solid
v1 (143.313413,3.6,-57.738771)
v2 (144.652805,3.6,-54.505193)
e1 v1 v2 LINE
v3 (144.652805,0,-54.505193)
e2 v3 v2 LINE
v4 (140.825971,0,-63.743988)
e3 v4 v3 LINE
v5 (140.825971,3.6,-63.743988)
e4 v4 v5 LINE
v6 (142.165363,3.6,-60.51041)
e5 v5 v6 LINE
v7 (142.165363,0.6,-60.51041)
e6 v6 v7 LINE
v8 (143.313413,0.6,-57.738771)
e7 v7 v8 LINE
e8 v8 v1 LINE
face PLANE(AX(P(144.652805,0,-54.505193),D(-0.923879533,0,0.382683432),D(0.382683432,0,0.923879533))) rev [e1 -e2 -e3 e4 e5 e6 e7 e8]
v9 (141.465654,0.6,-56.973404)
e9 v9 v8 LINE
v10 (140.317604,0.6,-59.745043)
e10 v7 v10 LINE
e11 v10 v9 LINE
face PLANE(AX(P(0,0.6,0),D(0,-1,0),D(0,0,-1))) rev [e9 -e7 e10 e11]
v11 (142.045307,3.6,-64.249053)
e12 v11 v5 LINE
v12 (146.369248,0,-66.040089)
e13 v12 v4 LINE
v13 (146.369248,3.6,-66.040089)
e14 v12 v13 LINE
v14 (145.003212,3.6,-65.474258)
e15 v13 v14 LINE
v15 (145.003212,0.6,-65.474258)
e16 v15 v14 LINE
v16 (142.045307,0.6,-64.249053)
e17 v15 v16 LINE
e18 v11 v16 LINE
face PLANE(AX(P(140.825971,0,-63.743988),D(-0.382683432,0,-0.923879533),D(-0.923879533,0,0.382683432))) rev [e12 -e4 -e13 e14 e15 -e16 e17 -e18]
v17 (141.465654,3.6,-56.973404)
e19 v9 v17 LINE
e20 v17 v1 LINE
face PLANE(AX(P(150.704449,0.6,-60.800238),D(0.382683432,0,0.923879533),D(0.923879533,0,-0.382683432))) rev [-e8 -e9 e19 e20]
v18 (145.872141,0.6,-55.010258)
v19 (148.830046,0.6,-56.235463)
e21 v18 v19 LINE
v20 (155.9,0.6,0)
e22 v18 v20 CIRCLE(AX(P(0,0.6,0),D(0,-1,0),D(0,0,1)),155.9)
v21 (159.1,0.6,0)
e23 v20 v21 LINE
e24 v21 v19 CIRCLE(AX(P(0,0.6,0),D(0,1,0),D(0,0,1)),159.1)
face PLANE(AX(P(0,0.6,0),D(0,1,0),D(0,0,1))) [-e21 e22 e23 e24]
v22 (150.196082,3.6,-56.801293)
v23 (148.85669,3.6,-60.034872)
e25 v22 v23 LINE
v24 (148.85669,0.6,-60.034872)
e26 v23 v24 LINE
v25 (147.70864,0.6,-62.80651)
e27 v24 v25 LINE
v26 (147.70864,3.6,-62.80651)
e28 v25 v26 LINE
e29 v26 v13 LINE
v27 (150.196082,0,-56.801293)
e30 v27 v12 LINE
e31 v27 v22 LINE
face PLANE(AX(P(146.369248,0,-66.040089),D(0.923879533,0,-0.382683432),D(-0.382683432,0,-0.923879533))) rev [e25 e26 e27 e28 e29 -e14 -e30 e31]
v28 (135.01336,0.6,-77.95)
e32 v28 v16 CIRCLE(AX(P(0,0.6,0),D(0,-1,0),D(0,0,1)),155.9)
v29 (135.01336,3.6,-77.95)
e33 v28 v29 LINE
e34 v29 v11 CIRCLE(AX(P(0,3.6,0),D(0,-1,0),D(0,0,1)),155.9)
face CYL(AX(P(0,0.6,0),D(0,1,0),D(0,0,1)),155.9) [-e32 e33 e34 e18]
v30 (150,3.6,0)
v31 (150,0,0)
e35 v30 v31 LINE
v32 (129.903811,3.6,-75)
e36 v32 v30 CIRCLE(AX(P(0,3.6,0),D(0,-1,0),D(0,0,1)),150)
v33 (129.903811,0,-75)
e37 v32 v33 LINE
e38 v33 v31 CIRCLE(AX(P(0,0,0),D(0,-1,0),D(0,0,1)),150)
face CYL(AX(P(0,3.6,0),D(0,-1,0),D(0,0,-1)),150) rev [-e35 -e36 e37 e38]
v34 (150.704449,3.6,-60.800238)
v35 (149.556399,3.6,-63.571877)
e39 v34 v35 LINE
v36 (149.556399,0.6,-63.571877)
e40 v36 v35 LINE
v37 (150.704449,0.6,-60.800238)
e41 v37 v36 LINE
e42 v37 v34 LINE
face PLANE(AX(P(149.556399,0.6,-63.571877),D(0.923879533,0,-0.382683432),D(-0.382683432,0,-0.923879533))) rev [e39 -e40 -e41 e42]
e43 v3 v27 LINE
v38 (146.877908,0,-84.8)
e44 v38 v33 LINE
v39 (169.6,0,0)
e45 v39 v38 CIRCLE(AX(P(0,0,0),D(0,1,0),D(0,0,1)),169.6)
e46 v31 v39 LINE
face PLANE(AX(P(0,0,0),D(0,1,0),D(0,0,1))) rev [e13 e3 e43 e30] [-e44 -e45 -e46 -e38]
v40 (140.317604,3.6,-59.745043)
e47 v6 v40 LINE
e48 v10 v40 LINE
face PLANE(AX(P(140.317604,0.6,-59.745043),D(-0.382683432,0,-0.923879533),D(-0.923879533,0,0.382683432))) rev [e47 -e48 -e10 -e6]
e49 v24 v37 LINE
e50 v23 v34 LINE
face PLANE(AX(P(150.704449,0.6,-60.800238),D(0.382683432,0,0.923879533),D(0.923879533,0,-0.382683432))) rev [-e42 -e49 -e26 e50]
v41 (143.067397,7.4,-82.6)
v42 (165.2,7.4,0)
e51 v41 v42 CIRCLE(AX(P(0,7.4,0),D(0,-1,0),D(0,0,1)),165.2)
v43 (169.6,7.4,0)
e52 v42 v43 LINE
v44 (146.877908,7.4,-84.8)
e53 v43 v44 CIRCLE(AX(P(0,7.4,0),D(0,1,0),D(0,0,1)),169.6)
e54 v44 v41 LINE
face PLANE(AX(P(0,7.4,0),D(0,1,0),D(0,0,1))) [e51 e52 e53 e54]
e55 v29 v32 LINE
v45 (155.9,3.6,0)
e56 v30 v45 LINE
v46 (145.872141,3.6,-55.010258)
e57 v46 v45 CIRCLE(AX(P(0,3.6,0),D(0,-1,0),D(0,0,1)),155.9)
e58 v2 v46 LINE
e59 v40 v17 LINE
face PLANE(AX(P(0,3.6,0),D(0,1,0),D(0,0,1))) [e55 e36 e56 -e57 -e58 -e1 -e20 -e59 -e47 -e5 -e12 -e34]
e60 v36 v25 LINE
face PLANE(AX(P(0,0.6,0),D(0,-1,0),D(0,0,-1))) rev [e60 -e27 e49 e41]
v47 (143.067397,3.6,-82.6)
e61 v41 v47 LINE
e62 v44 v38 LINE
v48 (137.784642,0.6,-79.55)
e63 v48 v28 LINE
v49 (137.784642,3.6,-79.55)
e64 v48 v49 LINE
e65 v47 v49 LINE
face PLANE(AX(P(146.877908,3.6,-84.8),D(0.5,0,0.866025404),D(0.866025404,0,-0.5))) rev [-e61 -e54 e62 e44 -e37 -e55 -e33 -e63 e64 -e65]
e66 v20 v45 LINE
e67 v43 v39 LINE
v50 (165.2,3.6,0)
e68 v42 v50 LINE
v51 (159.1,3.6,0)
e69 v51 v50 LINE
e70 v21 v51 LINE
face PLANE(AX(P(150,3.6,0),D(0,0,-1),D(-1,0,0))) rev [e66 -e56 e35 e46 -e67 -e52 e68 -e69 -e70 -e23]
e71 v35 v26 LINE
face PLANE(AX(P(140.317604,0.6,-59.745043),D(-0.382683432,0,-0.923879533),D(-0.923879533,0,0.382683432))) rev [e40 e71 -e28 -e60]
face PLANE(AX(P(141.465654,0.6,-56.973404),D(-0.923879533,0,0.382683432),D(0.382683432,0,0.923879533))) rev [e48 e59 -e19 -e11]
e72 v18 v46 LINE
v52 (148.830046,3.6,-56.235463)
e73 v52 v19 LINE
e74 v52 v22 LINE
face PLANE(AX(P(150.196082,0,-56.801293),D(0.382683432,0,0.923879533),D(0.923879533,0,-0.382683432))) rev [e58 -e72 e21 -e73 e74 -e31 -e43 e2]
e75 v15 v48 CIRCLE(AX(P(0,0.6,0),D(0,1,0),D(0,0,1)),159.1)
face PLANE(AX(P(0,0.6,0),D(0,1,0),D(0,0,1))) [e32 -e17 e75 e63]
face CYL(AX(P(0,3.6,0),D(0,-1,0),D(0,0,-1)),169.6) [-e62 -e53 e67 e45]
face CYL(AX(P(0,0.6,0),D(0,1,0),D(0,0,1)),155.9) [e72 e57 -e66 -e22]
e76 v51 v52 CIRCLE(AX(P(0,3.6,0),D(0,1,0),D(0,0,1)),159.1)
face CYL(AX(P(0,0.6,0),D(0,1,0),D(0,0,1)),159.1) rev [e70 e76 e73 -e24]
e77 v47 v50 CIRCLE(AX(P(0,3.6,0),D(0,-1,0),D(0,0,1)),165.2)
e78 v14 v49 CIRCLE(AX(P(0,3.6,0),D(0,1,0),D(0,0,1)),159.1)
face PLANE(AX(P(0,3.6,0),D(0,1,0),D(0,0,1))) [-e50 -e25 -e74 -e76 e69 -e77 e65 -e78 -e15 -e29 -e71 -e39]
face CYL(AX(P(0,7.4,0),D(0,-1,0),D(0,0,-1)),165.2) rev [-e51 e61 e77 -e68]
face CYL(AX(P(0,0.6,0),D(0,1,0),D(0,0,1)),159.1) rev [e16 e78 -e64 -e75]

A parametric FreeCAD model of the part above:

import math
import FreeCAD as App
import Part
import Sketcher

V = App.Vector
Q = App.Units.Quantity

doc = App.newDocument("Part")
body = doc.addObject("PartDesign::Body", "Body")

sketch1 = body.newObject("Sketcher::SketchObject", "Sketch")
sketch1.AttachmentSupport = (doc.getObject("XZ_Plane"), [""])
sketch1.MapMode = "FlatFace"
sketch1.addGeometry(Part.LineSegment(V(147, -85, 0), V(130, -75, 0)), False)
sketch1.addGeometry(Part.ArcOfCircle(Part.Circle(V(0, 0, 0), V(0, 0, 1), 150), math.radians(-30), math.radians(0)), False)
sketch1.addGeometry(Part.LineSegment(V(150, 0, 0), V(170, 0, 0)), False)
sketch1.addGeometry(Part.ArcOfCircle(Part.Circle(V(0, 0, 0), V(0, 0, 1), 170), math.radians(-30), math.radians(0)), False)
sketch1.addConstraint(Sketcher.Constraint("Coincident", 0, 2, 1, 1))
sketch1.addConstraint(Sketcher.Constraint("Coincident", 1, 2, 2, 1))
sketch1.addConstraint(Sketcher.Constraint("Coincident", 2, 2, 3, 2))
sketch1.addConstraint(Sketcher.Constraint("Coincident", 3, 1, 0, 1))
sketch1.addConstraint(Sketcher.Constraint("Horizontal", 2))
sketch1.addConstraint(Sketcher.Constraint("Coincident", 1, 3, -1, 1))
sketch1.addConstraint(Sketcher.Constraint("Coincident", 3, 3, -1, 1))
sketch1.addConstraint(Sketcher.Constraint("PointOnObject", 1, 2, -1))
sketch1.addConstraint(Sketcher.Constraint("Radius", 1, 150.0))
sketch1.addConstraint(Sketcher.Constraint("Radius", 3, 169.6))
sketch1.addConstraint(Sketcher.Constraint("Angle", 0, Q("150 deg")))
sketch1.addConstraint(Sketcher.Constraint("DistanceY", 0, 2, -1, 1, 75.0))
pad1 = body.newObject("PartDesign::Pad", "Pad")
pad1.Profile = sketch1
pad1.Length = 3.6
pad1.Reversed = True

sketch2 = body.newObject("Sketcher::SketchObject", "Sketch001")
sketch2.AttachmentSupport = (doc.getObject("XZ_Plane"), [""])
sketch2.MapMode = "FlatFace"
sketch2.AttachmentOffset = App.Placement(V(0, 0, -3.6), App.Rotation())
sketch2.addGeometry(Part.LineSegment(V(137.8, -79.5, 0), V(135, -78, 0)), False)
sketch2.addGeometry(Part.ArcOfCircle(Part.Circle(V(0, 0, 0), V(0, 0, 1), 155.9), math.radians(-30), math.radians(0)), False)
sketch2.addGeometry(Part.LineSegment(V(155.9, 0, 0), V(159.1, 0, 0)), False)
sketch2.addGeometry(Part.ArcOfCircle(Part.Circle(V(0, 0, 0), V(0, 0, 1), 159.1), math.radians(-30), math.radians(0)), False)
sketch2.addConstraint(Sketcher.Constraint("Coincident", 0, 2, 1, 1))
sketch2.addConstraint(Sketcher.Constraint("Coincident", 1, 2, 2, 1))
sketch2.addConstraint(Sketcher.Constraint("Coincident", 2, 2, 3, 2))
sketch2.addConstraint(Sketcher.Constraint("Coincident", 3, 1, 0, 1))
sketch2.addConstraint(Sketcher.Constraint("Horizontal", 2))
sketch2.addConstraint(Sketcher.Constraint("Coincident", 1, 3, -1, 1))
sketch2.addConstraint(Sketcher.Constraint("Coincident", 3, 3, -1, 1))
sketch2.addConstraint(Sketcher.Constraint("PointOnObject", 1, 2, -1))
sketch2.addConstraint(Sketcher.Constraint("Radius", 1, 155.9))
sketch2.addConstraint(Sketcher.Constraint("Radius", 3, 159.1))
sketch2.addConstraint(Sketcher.Constraint("Angle", 0, Q("150 deg")))
sketch2.addConstraint(Sketcher.Constraint("DistanceY", 0, 2, -1, 1, 77.95))
pocket1 = body.newObject("PartDesign::Pocket", "Pocket")
pocket1.Profile = sketch2
pocket1.Length = 3
pocket1.Reversed = True

sketch3 = body.newObject("Sketcher::SketchObject", "Sketch002")
sketch3.AttachmentSupport = (doc.getObject("XZ_Plane"), [""])
sketch3.MapMode = "FlatFace"
sketch3.AttachmentOffset = App.Placement(V(0, 0, -3.6), App.Rotation())
sketch3.addGeometry(Part.LineSegment(V(146, -66, 0), V(141, -64, 0)), False)
sketch3.addGeometry(Part.LineSegment(V(141, -64, 0), V(145, -55, 0)), False)
sketch3.addGeometry(Part.LineSegment(V(145, -55, 0), V(150, -57, 0)), False)
sketch3.addGeometry(Part.LineSegment(V(150, -57, 0), V(146, -66, 0)), False)
sketch3.addConstraint(Sketcher.Constraint("Coincident", 0, 2, 1, 1))
sketch3.addConstraint(Sketcher.Constraint("Coincident", 1, 2, 2, 1))
sketch3.addConstraint(Sketcher.Constraint("Coincident", 2, 2, 3, 1))
sketch3.addConstraint(Sketcher.Constraint("Coincident", 3, 2, 0, 1))
sketch3.addConstraint(Sketcher.Constraint("Perpendicular", 0, 1))
sketch3.addConstraint(Sketcher.Constraint("Perpendicular", 1, 2))
sketch3.addConstraint(Sketcher.Constraint("Perpendicular", 2, 3))
sketch3.addConstraint(Sketcher.Constraint("Distance", 0, 6.0))
sketch3.addConstraint(Sketcher.Constraint("Distance", 1, 10.0))
sketch3.addConstraint(Sketcher.Constraint("Angle", 0, Q("157.5 deg")))
sketch3.addConstraint(Sketcher.Constraint("DistanceX", -1, 1, 0, 2, 140.825971))
sketch3.addConstraint(Sketcher.Constraint("DistanceY", 3, 2, -1, 1, 66.040089))
pocket2 = body.newObject("PartDesign::Pocket", "Pocket001")
pocket2.Profile = sketch3
pocket2.Type = "ThroughAll"
pocket2.Reversed = True

sketch4 = body.newObject("Sketcher::SketchObject", "Sketch003")
sketch4.AttachmentSupport = (doc.getObject("XZ_Plane"), [""])
sketch4.MapMode = "FlatFace"
sketch4.AttachmentOffset = App.Placement(V(0, 0, -3.6), App.Rotation())
sketch4.addGeometry(Part.LineSegment(V(149.6, -63.6, 0), V(140.3, -59.7, 0)), False)
sketch4.addGeometry(Part.LineSegment(V(140.3, -59.7, 0), V(141.5, -57, 0)), False)
sketch4.addGeometry(Part.LineSegment(V(141.5, -57, 0), V(150.7, -60.8, 0)), False)
sketch4.addGeometry(Part.LineSegment(V(150.7, -60.8, 0), V(149.6, -63.6, 0)), False)
sketch4.addConstraint(Sketcher.Constraint("Coincident", 0, 2, 1, 1))
sketch4.addConstraint(Sketcher.Constraint("Coincident", 1, 2, 2, 1))
sketch4.addConstraint(Sketcher.Constraint("Coincident", 2, 2, 3, 1))
sketch4.addConstraint(Sketcher.Constraint("Coincident", 3, 2, 0, 1))
sketch4.addConstraint(Sketcher.Constraint("Perpendicular", 0, 1))
sketch4.addConstraint(Sketcher.Constraint("Perpendicular", 1, 2))
sketch4.addConstraint(Sketcher.Constraint("Perpendicular", 2, 3))
sketch4.addConstraint(Sketcher.Constraint("Distance", 0, 10.0))
sketch4.addConstraint(Sketcher.Constraint("Distance", 1, 3.0))
sketch4.addConstraint(Sketcher.Constraint("Angle", 0, Q("157.5 deg")))
sketch4.addConstraint(Sketcher.Constraint("DistanceX", -1, 1, 3, 2, 149.556399))
sketch4.addConstraint(Sketcher.Constraint("DistanceY", 2, 2, -1, 1, 60.800238))
pocket3 = body.newObject("PartDesign::Pocket", "Pocket002")
pocket3.Profile = sketch4
pocket3.Length = 3
pocket3.Reversed = True

sketch5 = body.newObject("Sketcher::SketchObject", "Sketch004")
sketch5.AttachmentSupport = (doc.getObject("XZ_Plane"), [""])
sketch5.MapMode = "FlatFace"
sketch5.AttachmentOffset = App.Placement(V(0, 0, -3.6), App.Rotation())
sketch5.addGeometry(Part.LineSegment(V(146.9, -84.8, 0), V(143.1, -82.6, 0)), False)
sketch5.addGeometry(Part.ArcOfCircle(Part.Circle(V(0, 0, 0), V(0, 0, 1), 165.2), math.radians(-30), math.radians(0)), False)
sketch5.addGeometry(Part.LineSegment(V(165.2, 0, 0), V(169.6, 0, 0)), False)
sketch5.addGeometry(Part.ArcOfCircle(Part.Circle(V(0, 0, 0), V(0, 0, 1), 169.6), math.radians(-30), math.radians(0)), False)
sketch5.addConstraint(Sketcher.Constraint("Coincident", 0, 2, 1, 1))
sketch5.addConstraint(Sketcher.Constraint("Coincident", 1, 2, 2, 1))
sketch5.addConstraint(Sketcher.Constraint("Coincident", 2, 2, 3, 2))
sketch5.addConstraint(Sketcher.Constraint("Coincident", 3, 1, 0, 1))
sketch5.addConstraint(Sketcher.Constraint("Horizontal", 2))
sketch5.addConstraint(Sketcher.Constraint("Coincident", 1, 3, -1, 1))
sketch5.addConstraint(Sketcher.Constraint("Coincident", 3, 3, -1, 1))
sketch5.addConstraint(Sketcher.Constraint("PointOnObject", 1, 2, -1))
sketch5.addConstraint(Sketcher.Constraint("Radius", 1, 165.2))
sketch5.addConstraint(Sketcher.Constraint("Radius", 3, 169.6))
sketch5.addConstraint(Sketcher.Constraint("Angle", 0, Q("150 deg")))
sketch5.addConstraint(Sketcher.Constraint("DistanceY", 0, 2, -1, 1, 82.6))
pad2 = body.newObject("PartDesign::Pad", "Pad001")
pad2.Profile = sketch5
pad2.Length = 3.8
pad2.Reversed = True

doc.recompute()
